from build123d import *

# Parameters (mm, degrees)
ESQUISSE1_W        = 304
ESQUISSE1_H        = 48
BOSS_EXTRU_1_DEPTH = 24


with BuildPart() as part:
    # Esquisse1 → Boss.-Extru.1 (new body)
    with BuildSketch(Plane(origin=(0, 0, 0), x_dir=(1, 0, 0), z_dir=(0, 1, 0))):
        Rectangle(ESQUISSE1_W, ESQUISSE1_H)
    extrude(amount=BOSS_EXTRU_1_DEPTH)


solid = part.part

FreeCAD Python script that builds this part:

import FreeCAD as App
import Part
import Sketcher

V = App.Vector


def add_polygon(sketch, points):
    """Adds a closed chain of lines whose ends are joined by coincident constraints."""
    first, n = sketch.GeometryCount, len(points)
    for a, b in zip(points, points[1:] + points[:1]):
        sketch.addGeometry(Part.LineSegment(App.Vector(*a, 0), App.Vector(*b, 0)), False)
    for i in range(n):
        sketch.addConstraint(Sketcher.Constraint("Coincident", first + i, 2, first + (i + 1) % n, 1))

doc = App.newDocument("Part")
body = doc.addObject("PartDesign::Body", "Body")

# Sketch on XZ plane
sketch1 = doc.addObject("Sketcher::SketchObject", "Sketch")
body.addObject(sketch1)
sketch1.AttachmentSupport = (doc.XZ_Plane, [""])
sketch1.MapMode = "FlatFace"
add_polygon(sketch1, [(-152, -24), (-152, 24), (152, 24), (152, -24)])  # lines 0-3
sketch1.addConstraint(Sketcher.Constraint("Vertical", 0))
sketch1.addConstraint(Sketcher.Constraint("Horizontal", 1))
sketch1.addConstraint(Sketcher.Constraint("Vertical", 2))
sketch1.addConstraint(Sketcher.Constraint("Horizontal", 3))
sketch1.addConstraint(Sketcher.Constraint("Symmetric", 0, 2, 2, 2, -1, 1))
sketch1.addConstraint(Sketcher.Constraint("DistanceX", 1, 1, 1, 2, 304.0))
sketch1.addConstraint(Sketcher.Constraint("DistanceY", 0, 1, 0, 2, 48.0))
pad1 = doc.addObject("PartDesign::Pad", "Pad")
body.addObject(pad1)
pad1.Profile = sketch1
pad1.Length = 24
pad1.Reversed = True

doc.recompute()
